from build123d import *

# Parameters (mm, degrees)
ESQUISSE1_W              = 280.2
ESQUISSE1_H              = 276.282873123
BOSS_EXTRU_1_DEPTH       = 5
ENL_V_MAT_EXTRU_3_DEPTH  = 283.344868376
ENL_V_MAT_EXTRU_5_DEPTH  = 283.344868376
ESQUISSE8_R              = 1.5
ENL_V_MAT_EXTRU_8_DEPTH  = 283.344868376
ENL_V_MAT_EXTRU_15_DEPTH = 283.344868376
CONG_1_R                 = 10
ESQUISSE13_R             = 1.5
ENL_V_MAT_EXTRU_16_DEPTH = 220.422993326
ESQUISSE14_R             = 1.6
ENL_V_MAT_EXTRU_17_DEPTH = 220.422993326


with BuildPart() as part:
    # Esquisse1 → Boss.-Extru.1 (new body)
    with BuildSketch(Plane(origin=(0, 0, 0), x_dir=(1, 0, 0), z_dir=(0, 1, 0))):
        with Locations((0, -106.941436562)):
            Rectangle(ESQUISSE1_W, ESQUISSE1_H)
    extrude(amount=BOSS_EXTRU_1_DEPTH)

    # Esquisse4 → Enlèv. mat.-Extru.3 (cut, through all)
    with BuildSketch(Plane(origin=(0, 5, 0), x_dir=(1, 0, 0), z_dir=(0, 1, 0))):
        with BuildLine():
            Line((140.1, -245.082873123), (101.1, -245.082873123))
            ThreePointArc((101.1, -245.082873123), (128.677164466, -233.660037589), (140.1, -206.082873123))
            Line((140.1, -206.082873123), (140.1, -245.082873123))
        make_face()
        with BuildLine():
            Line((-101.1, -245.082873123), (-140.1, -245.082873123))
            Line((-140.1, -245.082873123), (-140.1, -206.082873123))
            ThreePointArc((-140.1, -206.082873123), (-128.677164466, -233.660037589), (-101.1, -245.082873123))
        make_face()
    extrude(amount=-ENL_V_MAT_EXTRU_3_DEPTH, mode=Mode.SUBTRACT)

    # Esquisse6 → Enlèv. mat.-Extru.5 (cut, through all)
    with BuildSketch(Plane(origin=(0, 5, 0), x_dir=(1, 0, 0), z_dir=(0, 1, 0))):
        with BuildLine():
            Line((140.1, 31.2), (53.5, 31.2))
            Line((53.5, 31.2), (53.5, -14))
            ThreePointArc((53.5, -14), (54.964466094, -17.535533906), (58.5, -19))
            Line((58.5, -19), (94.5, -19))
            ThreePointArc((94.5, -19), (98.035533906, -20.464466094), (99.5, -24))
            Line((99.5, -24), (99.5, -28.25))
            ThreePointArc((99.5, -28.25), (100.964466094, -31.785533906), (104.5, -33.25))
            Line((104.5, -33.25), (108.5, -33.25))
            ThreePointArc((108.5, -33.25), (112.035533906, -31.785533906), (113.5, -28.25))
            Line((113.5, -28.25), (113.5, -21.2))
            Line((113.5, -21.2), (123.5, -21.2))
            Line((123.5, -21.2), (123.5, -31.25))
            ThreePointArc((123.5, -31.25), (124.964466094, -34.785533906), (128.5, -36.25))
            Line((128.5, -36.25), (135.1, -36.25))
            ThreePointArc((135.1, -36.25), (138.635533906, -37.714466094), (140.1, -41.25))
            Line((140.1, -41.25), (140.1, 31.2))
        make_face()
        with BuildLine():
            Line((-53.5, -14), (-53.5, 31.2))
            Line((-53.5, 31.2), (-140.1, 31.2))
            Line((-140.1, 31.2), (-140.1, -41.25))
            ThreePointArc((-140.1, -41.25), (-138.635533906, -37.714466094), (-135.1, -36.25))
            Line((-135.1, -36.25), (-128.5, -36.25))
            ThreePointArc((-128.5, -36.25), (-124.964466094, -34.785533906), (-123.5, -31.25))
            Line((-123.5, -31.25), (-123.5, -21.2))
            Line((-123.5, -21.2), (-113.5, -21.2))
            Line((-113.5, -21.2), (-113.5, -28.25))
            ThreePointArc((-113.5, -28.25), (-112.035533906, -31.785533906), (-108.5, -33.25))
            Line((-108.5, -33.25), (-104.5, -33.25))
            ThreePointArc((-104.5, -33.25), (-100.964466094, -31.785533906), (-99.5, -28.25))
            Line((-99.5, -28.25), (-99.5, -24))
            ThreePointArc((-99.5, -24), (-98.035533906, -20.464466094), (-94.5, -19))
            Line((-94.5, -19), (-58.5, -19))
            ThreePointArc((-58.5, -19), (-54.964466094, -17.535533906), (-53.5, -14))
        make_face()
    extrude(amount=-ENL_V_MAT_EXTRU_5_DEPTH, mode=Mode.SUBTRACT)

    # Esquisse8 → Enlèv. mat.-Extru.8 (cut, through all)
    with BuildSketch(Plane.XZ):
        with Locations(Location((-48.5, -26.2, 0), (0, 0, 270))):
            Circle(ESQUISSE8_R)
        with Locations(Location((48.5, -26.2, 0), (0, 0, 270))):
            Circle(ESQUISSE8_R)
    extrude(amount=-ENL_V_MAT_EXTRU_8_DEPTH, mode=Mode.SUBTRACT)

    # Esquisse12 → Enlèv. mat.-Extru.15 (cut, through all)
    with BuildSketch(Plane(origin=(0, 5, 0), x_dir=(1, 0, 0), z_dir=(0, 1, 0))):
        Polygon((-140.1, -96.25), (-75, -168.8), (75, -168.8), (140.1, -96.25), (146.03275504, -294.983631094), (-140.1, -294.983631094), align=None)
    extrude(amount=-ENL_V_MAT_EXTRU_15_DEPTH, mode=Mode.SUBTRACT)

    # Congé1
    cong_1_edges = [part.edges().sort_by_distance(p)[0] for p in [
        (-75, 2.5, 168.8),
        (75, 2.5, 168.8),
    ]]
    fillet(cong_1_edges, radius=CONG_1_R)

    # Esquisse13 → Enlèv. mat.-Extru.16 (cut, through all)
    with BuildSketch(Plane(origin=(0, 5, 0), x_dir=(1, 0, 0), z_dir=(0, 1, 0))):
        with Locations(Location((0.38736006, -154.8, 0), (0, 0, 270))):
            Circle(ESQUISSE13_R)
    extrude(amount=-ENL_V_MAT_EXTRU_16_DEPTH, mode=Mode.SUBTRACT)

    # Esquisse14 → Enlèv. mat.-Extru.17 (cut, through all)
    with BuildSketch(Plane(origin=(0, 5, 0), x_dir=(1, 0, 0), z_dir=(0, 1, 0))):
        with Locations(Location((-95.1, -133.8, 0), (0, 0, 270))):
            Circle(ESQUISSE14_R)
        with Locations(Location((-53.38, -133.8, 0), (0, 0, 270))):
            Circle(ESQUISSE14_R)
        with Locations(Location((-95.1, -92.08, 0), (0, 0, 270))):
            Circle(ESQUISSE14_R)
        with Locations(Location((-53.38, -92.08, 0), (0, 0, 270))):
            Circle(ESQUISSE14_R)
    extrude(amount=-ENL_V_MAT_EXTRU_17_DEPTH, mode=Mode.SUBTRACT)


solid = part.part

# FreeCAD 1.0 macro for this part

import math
import FreeCAD as App
import Part
import Sketcher
Q = App.Units.Quantity


def edges_at(feature, points):
    """Names of the edges that pass closest to the given points."""
    edges = feature.Shape.Edges
    near = lambda p: min(range(len(edges)), key=lambda i: edges[i].distToShape(Part.Vertex(*p))[0])
    return sorted({f"Edge{near(p) + 1}" for p in points})


def add_polygon(sketch, points):
    """Adds a closed chain of lines whose ends are joined by coincident constraints."""
    first, n = sketch.GeometryCount, len(points)
    for a, b in zip(points, points[1:] + points[:1]):
        sketch.addGeometry(Part.LineSegment(App.Vector(*a, 0), App.Vector(*b, 0)), False)
    for i in range(n):
        sketch.addConstraint(Sketcher.Constraint("Coincident", first + i, 2, first + (i + 1) % n, 1))

doc = App.newDocument("Part")
params = doc.addObject("Spreadsheet::Sheet", "Params")
for row, (alias, value) in enumerate([
    ("sketch1_width", "280.2 mm"),
    ("pad1_length", "5 mm"),
    ("sketch2_radius", "39 mm"),
    ("sketch3_radius", "5 mm"),
    ("sketch3_width", "36 mm"),
    ("sketch3_width2", "4 mm"),
    ("sketch3_width3", "10 mm"),
    ("sketch3_width4", "86.6 mm"),
    ("sketch4_diameter", "3 mm"),
    ("sketch5_width", "150 mm"),
    ("fillet_radius", "10 mm"),
    ("sketch6_diameter", "3 mm"),
    ("sketch7_diameter", "3.2 mm"),
], start=1):
    params.set(f"A{row}", alias)
    params.set(f"B{row}", "=" + value)
    params.setAlias(f"B{row}", alias)

body = doc.addObject("PartDesign::Body", "Body")

# Sketch on XZ plane
sketch1 = doc.addObject("Sketcher::SketchObject", "Sketch")
body.addObject(sketch1)
sketch1.AttachmentSupport = (doc.XZ_Plane, [""])
sketch1.MapMode = "FlatFace"
add_polygon(sketch1, [(-140.1, -31.2), (-140.1, 245.082873), (140.1, 245.082873), (140.1, -31.2)])  # lines 0-3
sketch1.addConstraint([
    Sketcher.Constraint("Vertical", 0),
    Sketcher.Constraint("Horizontal", 1),
    Sketcher.Constraint("Vertical", 2),
    Sketcher.Constraint("Horizontal", 3),
    Sketcher.Constraint("DistanceX", 1, 1, 1, 2, Q("280.2 mm")),
    Sketcher.Constraint("DistanceX", 0, 2, -1, 1, Q("140.1 mm")),
    Sketcher.Constraint("DistanceY", 2, 2, -1, 1, Q("31.2 mm")),
    Sketcher.Constraint("DistanceY", 0, 1, 0, 2, Q("276.282873 mm")),
])
sketch1.setExpression("Constraints[8]", "Params.sketch1_width")
pad1 = doc.addObject("PartDesign::Pad", "Pad")
body.addObject(pad1)
pad1.Profile = sketch1
pad1.setExpression("Length", "Params.pad1_length")
pad1.Reversed = True

# Sketch on XZ plane
sketch2 = doc.addObject("Sketcher::SketchObject", "Sketch001")
body.addObject(sketch2)
sketch2.AttachmentSupport = (doc.XZ_Plane, [""])
sketch2.MapMode = "FlatFace"
sketch2.AttachmentOffset = App.Placement(App.Vector(0, 0, -5), App.Rotation())
sketch2.addGeometry([
    Part.LineSegment(App.Vector(101.1, 245.082873, 0), App.Vector(140.1, 245.082873, 0)),  # 0
    Part.LineSegment(App.Vector(140.1, 245.082873, 0), App.Vector(140.1, 206.082873, 0)),  # 1
    Part.ArcOfCircle(Part.Circle(App.Vector(101.1, 206.082873, 0), App.Vector(0, 0, 1), 39), math.radians(0), math.radians(90)),  # 2
    Part.LineSegment(App.Vector(-140.1, 245.082873, 0), App.Vector(-101.1, 245.082873, 0)),  # 3
    Part.ArcOfCircle(Part.Circle(App.Vector(-101.1, 206.082873, 0), App.Vector(0, 0, 1), 39), math.radians(90), math.radians(180)),  # 4
    Part.LineSegment(App.Vector(-140.1, 206.082873, 0), App.Vector(-140.1, 245.082873, 0)),  # 5
], False)
sketch2.addConstraint([
    Sketcher.Constraint("Coincident", 0, 2, 1, 1),
    Sketcher.Constraint("Tangent", 1, 2, 2, 1),
    Sketcher.Constraint("Tangent", 2, 2, 0, 1),
    Sketcher.Constraint("Tangent", 3, 2, 4, 1),
    Sketcher.Constraint("Tangent", 4, 2, 5, 1),
    Sketcher.Constraint("Coincident", 5, 2, 3, 1),
    Sketcher.Constraint("Horizontal", 0),
    Sketcher.Constraint("Vertical", 1),
    Sketcher.Constraint("Horizontal", 3),
    Sketcher.Constraint("Vertical", 5),
    Sketcher.Constraint("Equal", 2, 4),
    Sketcher.Constraint("Symmetric", 2, 3, 4, 3, -2),
    Sketcher.Constraint("Radius", 2, Q("39 mm")),
    Sketcher.Constraint("DistanceX", -1, 1, 2, 3, Q("101.1 mm")),
    Sketcher.Constraint("DistanceY", -1, 1, 2, 3, Q("206.082873 mm")),
])
sketch2.setExpression("Constraints[12]", "Params.sketch2_radius")
pocket1 = doc.addObject("PartDesign::Pocket", "Pocket")
body.addObject(pocket1)
pocket1.Profile = sketch2
pocket1.Type = "ThroughAll"
pocket1.Reversed = True

# Sketch on XZ plane
sketch3 = doc.addObject("Sketcher::SketchObject", "Sketch002")
body.addObject(sketch3)
sketch3.AttachmentSupport = (doc.XZ_Plane, [""])
sketch3.MapMode = "FlatFace"
sketch3.AttachmentOffset = App.Placement(App.Vector(0, 0, -5), App.Rotation())
sketch3.addGeometry([
    Part.LineSegment(App.Vector(140.1, -31.2, 0), App.Vector(53.5, -31.2, 0)),  # 0
    Part.LineSegment(App.Vector(53.5, -31.2, 0), App.Vector(53.5, 14, 0)),  # 1
    Part.ArcOfCircle(Part.Circle(App.Vector(58.5, 14, 0), App.Vector(0, 0, 1), 5), math.radians(90), math.radians(180)),  # 2
    Part.LineSegment(App.Vector(58.5, 19, 0), App.Vector(94.5, 19, 0)),  # 3
    Part.ArcOfCircle(Part.Circle(App.Vector(94.5, 24, 0), App.Vector(0, 0, 1), 5), math.radians(-90), math.radians(0)),  # 4
    Part.LineSegment(App.Vector(99.5, 24, 0), App.Vector(99.5, 28.25, 0)),  # 5
    Part.ArcOfCircle(Part.Circle(App.Vector(104.5, 28.25, 0), App.Vector(0, 0, 1), 5), math.radians(90), math.radians(180)),  # 6
    Part.LineSegment(App.Vector(104.5, 33.25, 0), App.Vector(108.5, 33.25, 0)),  # 7
    Part.ArcOfCircle(Part.Circle(App.Vector(108.5, 28.25, 0), App.Vector(0, 0, 1), 5), math.radians(0), math.radians(90)),  # 8
    Part.LineSegment(App.Vector(113.5, 28.25, 0), App.Vector(113.5, 21.2, 0)),  # 9
    Part.LineSegment(App.Vector(113.5, 21.2, 0), App.Vector(123.5, 21.2, 0)),  # 10
    Part.LineSegment(App.Vector(123.5, 21.2, 0), App.Vector(123.5, 31.25, 0)),  # 11
    Part.ArcOfCircle(Part.Circle(App.Vector(128.5, 31.25, 0), App.Vector(0, 0, 1), 5), math.radians(90), math.radians(180)),  # 12
    Part.LineSegment(App.Vector(128.5, 36.25, 0), App.Vector(135.1, 36.25, 0)),  # 13
    Part.ArcOfCircle(Part.Circle(App.Vector(135.1, 41.25, 0), App.Vector(0, 0, 1), 5), math.radians(-90), math.radians(0)),  # 14
    Part.LineSegment(App.Vector(140.1, 41.25, 0), App.Vector(140.1, -31.2, 0)),  # 15
    Part.LineSegment(App.Vector(-53.5, 14, 0), App.Vector(-53.5, -31.2, 0)),  # 16
    Part.LineSegment(App.Vector(-53.5, -31.2, 0), App.Vector(-140.1, -31.2, 0)),  # 17
    Part.LineSegment(App.Vector(-140.1, -31.2, 0), App.Vector(-140.1, 41.25, 0)),  # 18
    Part.ArcOfCircle(Part.Circle(App.Vector(-135.1, 41.25, 0), App.Vector(0, 0, 1), 5), math.radians(180), math.radians(270)),  # 19
    Part.LineSegment(App.Vector(-135.1, 36.25, 0), App.Vector(-128.5, 36.25, 0)),  # 20
    Part.ArcOfCircle(Part.Circle(App.Vector(-128.5, 31.25, 0), App.Vector(0, 0, 1), 5), math.radians(0), math.radians(90)),  # 21
    Part.LineSegment(App.Vector(-123.5, 31.25, 0), App.Vector(-123.5, 21.2, 0)),  # 22
    Part.LineSegment(App.Vector(-123.5, 21.2, 0), App.Vector(-113.5, 21.2, 0)),  # 23
    Part.LineSegment(App.Vector(-113.5, 21.2, 0), App.Vector(-113.5, 28.25, 0)),  # 24
    Part.ArcOfCircle(Part.Circle(App.Vector(-108.5, 28.25, 0), App.Vector(0, 0, 1), 5), math.radians(90), math.radians(180)),  # 25
    Part.LineSegment(App.Vector(-108.5, 33.25, 0), App.Vector(-104.5, 33.25, 0)),  # 26
    Part.ArcOfCircle(Part.Circle(App.Vector(-104.5, 28.25, 0), App.Vector(0, 0, 1), 5), math.radians(0), math.radians(90)),  # 27
    Part.LineSegment(App.Vector(-99.5, 28.25, 0), App.Vector(-99.5, 24, 0)),  # 28
    Part.ArcOfCircle(Part.Circle(App.Vector(-94.5, 24, 0), App.Vector(0, 0, 1), 5), math.radians(180), math.radians(270)),  # 29
    Part.LineSegment(App.Vector(-94.5, 19, 0), App.Vector(-58.5, 19, 0)),  # 30
    Part.ArcOfCircle(Part.Circle(App.Vector(-58.5, 14, 0), App.Vector(0, 0, 1), 5), math.radians(0), math.radians(90)),  # 31
], False)
sketch3.addConstraint([
    Sketcher.Constraint("Coincident", 0, 2, 1, 1),
    Sketcher.Constraint("Tangent", 1, 2, 2, 2),
    Sketcher.Constraint("Tangent", 2, 1, 3, 1),
    Sketcher.Constraint("Tangent", 3, 2, 4, 1),
    Sketcher.Constraint("Tangent", 4, 2, 5, 1),
    Sketcher.Constraint("Tangent", 5, 2, 6, 2),
    Sketcher.Constraint("Tangent", 6, 1, 7, 1),
    Sketcher.Constraint("Tangent", 7, 2, 8, 2),
    Sketcher.Constraint("Tangent", 8, 1, 9, 1),
    Sketcher.Constraint("Coincident", 9, 2, 10, 1),
    Sketcher.Constraint("Coincident", 10, 2, 11, 1),
    Sketcher.Constraint("Tangent", 11, 2, 12, 2),
    Sketcher.Constraint("Tangent", 12, 1, 13, 1),
    Sketcher.Constraint("Tangent", 13, 2, 14, 1),
    Sketcher.Constraint("Tangent", 14, 2, 15, 1),
    Sketcher.Constraint("Coincident", 15, 2, 0, 1),
    Sketcher.Constraint("Coincident", 16, 2, 17, 1),
    Sketcher.Constraint("Coincident", 17, 2, 18, 1),
    Sketcher.Constraint("Tangent", 18, 2, 19, 1),
    Sketcher.Constraint("Tangent", 19, 2, 20, 1),
    Sketcher.Constraint("Tangent", 20, 2, 21, 2),
    Sketcher.Constraint("Tangent", 21, 1, 22, 1),
    Sketcher.Constraint("Coincident", 22, 2, 23, 1),
    Sketcher.Constraint("Coincident", 23, 2, 24, 1),
    Sketcher.Constraint("Tangent", 24, 2, 25, 2),
    Sketcher.Constraint("Tangent", 25, 1, 26, 1),
    Sketcher.Constraint("Tangent", 26, 2, 27, 2),
    Sketcher.Constraint("Tangent", 27, 1, 28, 1),
    Sketcher.Constraint("Tangent", 28, 2, 29, 1),
    Sketcher.Constraint("Tangent", 29, 2, 30, 1),
    Sketcher.Constraint("Tangent", 30, 2, 31, 2),
    Sketcher.Constraint("Tangent", 31, 1, 16, 1),
    Sketcher.Constraint("Horizontal", 0),
    Sketcher.Constraint("Vertical", 1),
    Sketcher.Constraint("Horizontal", 3),
    Sketcher.Constraint("Vertical", 5),
    Sketcher.Constraint("Horizontal", 7),
    Sketcher.Constraint("Vertical", 9),
    Sketcher.Constraint("Horizontal", 10),
    Sketcher.Constraint("Vertical", 11),
    Sketcher.Constraint("Horizontal", 13),
    Sketcher.Constraint("Vertical", 15),
    Sketcher.Constraint("Vertical", 16),
    Sketcher.Constraint("Horizontal", 17),
    Sketcher.Constraint("Vertical", 18),
    Sketcher.Constraint("Horizontal", 20),
    Sketcher.Constraint("Vertical", 22),
    Sketcher.Constraint("Horizontal", 23),
    Sketcher.Constraint("Vertical", 24),
    Sketcher.Constraint("Horizontal", 26),
    Sketcher.Constraint("Vertical", 28),
    Sketcher.Constraint("Horizontal", 30),
    Sketcher.Constraint("Equal", 2, 4),
    Sketcher.Constraint("Equal", 4, 6),
    Sketcher.Constraint("Equal", 6, 8),
    Sketcher.Constraint("Equal", 8, 12),
    Sketcher.Constraint("Equal", 12, 14),
    Sketcher.Constraint("Equal", 14, 19),
    Sketcher.Constraint("Equal", 19, 21),
    Sketcher.Constraint("Equal", 21, 25),
    Sketcher.Constraint("Equal", 25, 27),
    Sketcher.Constraint("Equal", 27, 29),
    Sketcher.Constraint("Equal", 29, 31),
    Sketcher.Constraint("Symmetric", 14, 3, 19, 3, -2),
    Sketcher.Constraint("Symmetric", 8, 3, 25, 3, -2),
    Sketcher.Constraint("Symmetric", 4, 3, 29, 3, -2),
    Sketcher.Constraint("Symmetric", 0, 2, 16, 2, -2),
    Sketcher.Constraint("Symmetric", 10, 2, 22, 2, -2),
    Sketcher.Constraint("Radius", 2, Q("5 mm")),
    Sketcher.Constraint("DistanceX", 3, 1, 3, 2, Q("36 mm")),
    Sketcher.Constraint("DistanceX", 7, 1, 7, 2, Q("4 mm")),
    Sketcher.Constraint("DistanceX", 10, 1, 10, 2, Q("10 mm")),
    Sketcher.Constraint("DistanceX", 0, 2, 0, 1, Q("86.6 mm")),
    Sketcher.Constraint("DistanceY", 1, 1, 1, 2, Q("45.2 mm")),
    Sketcher.Constraint("DistanceY", -1, 1, 2, 3, Q("14 mm")),
    Sketcher.Constraint("DistanceY", 8, 3, 12, 3, Q("3 mm")),
    Sketcher.Constraint("DistanceX", 21, 3, 2, 3, Q("187 mm")),
    Sketcher.Constraint("DistanceY", 5, 1, 5, 2, Q("4.25 mm")),
    Sketcher.Constraint("DistanceY", 9, 2, 9, 1, Q("7.05 mm")),
])
sketch3.setExpression("Constraints[68]", "Params.sketch3_radius")
sketch3.setExpression("Constraints[69]", "Params.sketch3_width")
sketch3.setExpression("Constraints[70]", "Params.sketch3_width2")
sketch3.setExpression("Constraints[71]", "Params.sketch3_width3")
sketch3.setExpression("Constraints[72]", "Params.sketch3_width4")
pocket2 = doc.addObject("PartDesign::Pocket", "Pocket001")
body.addObject(pocket2)
pocket2.Profile = sketch3
pocket2.Type = "ThroughAll"
pocket2.Reversed = True

# Sketch on XZ plane
sketch4 = doc.addObject("Sketcher::SketchObject", "Sketch003")
body.addObject(sketch4)
sketch4.AttachmentSupport = (doc.XZ_Plane, [""])
sketch4.MapMode = "FlatFace"
sketch4.addGeometry([
    Part.Circle(App.Vector(-48.5, -26.2, 0), App.Vector(0, 0, 1), 1.5),
    Part.Circle(App.Vector(48.5, -26.2, 0), App.Vector(0, 0, 1), 1.5),
], False)
sketch4.addConstraint([
    Sketcher.Constraint("Equal", 0, 1),
    Sketcher.Constraint("Symmetric", 0, 3, 1, 3, -2),
    Sketcher.Constraint("Diameter", 0, Q("3 mm")),
    Sketcher.Constraint("DistanceX", 0, 3, 1, 3, Q("97 mm")),
    Sketcher.Constraint("DistanceY", 0, 3, -1, 1, Q("26.2 mm")),
])
sketch4.setExpression("Constraints[2]", "Params.sketch4_diameter")
pocket3 = doc.addObject("PartDesign::Pocket", "Pocket002")
body.addObject(pocket3)
pocket3.Profile = sketch4
pocket3.Type = "ThroughAll"

# Sketch on XZ plane
sketch5 = doc.addObject("Sketcher::SketchObject", "Sketch004")
body.addObject(sketch5)
sketch5.AttachmentSupport = (doc.XZ_Plane, [""])
sketch5.MapMode = "FlatFace"
sketch5.AttachmentOffset = App.Placement(App.Vector(0, 0, -5), App.Rotation())
add_polygon(sketch5, [(-75, 168.8), (-140.1, 96.25), (-140.1, 294.983631), (146.032755, 294.983631), (140.1, 96.25), (75, 168.8)])  # lines 0-5
sketch5.addConstraint([
    Sketcher.Constraint("Vertical", 1),
    Sketcher.Constraint("Horizontal", 2),
    Sketcher.Constraint("Horizontal", 5),
    Sketcher.Constraint("Symmetric", 0, 2, 3, 2, -2),
    Sketcher.Constraint("Equal", 0, 4),
    Sketcher.Constraint("DistanceX", 5, 2, 5, 1, Q("150 mm")),
    Sketcher.Constraint("DistanceX", 0, 2, -1, 1, Q("140.1 mm")),
    Sketcher.Constraint("DistanceY", -1, 1, 4, 2, Q("168.8 mm")),
    Sketcher.Constraint("DistanceY", -1, 1, 0, 2, Q("96.25 mm")),
    Sketcher.Constraint("DistanceY", 1, 1, 1, 2, Q("198.733631 mm")),
    Sketcher.Constraint("DistanceX", 2, 1, 2, 2, Q("286.132755 mm")),
])
sketch5.setExpression("Constraints[11]", "Params.sketch5_width")
pocket4 = doc.addObject("PartDesign::Pocket", "Pocket003")
body.addObject(pocket4)
pocket4.Profile = sketch5
pocket4.Type = "ThroughAll"
pocket4.Reversed = True
doc.recompute()

fillet = doc.addObject("PartDesign::Fillet", "Fillet")
body.addObject(fillet)
fillet.Base = (pocket4, edges_at(pocket4, [(-75, 2.5, 168.8), (75, 2.5, 168.8)]))
fillet.setExpression("Radius", "Params.fillet_radius")

# Sketch on XZ plane
sketch6 = doc.addObject("Sketcher::SketchObject", "Sketch005")
body.addObject(sketch6)
sketch6.AttachmentSupport = (doc.XZ_Plane, [""])
sketch6.MapMode = "FlatFace"
sketch6.AttachmentOffset = App.Placement(App.Vector(0, 0, -5), App.Rotation())
sketch6.addGeometry(Part.Circle(App.Vector(0.38736, 154.8, 0), App.Vector(0, 0, 1), 1.5), False)
sketch6.addConstraint([
    Sketcher.Constraint("Diameter", 0, Q("3 mm")),
    Sketcher.Constraint("DistanceY", -1, 1, 0, 3, Q("154.8 mm")),
    Sketcher.Constraint("DistanceX", -1, 1, 0, 3, Q("0.38736 mm")),
])
sketch6.setExpression("Constraints[0]", "Params.sketch6_diameter")
pocket5 = doc.addObject("PartDesign::Pocket", "Pocket004")
body.addObject(pocket5)
pocket5.Profile = sketch6
pocket5.Type = "ThroughAll"
pocket5.Reversed = True

# Sketch on XZ plane
sketch7 = doc.addObject("Sketcher::SketchObject", "Sketch006")
body.addObject(sketch7)
sketch7.AttachmentSupport = (doc.XZ_Plane, [""])
sketch7.MapMode = "FlatFace"
sketch7.AttachmentOffset = App.Placement(App.Vector(0, 0, -5), App.Rotation())
sketch7.addGeometry([
    Part.Circle(App.Vector(-95.1, 133.8, 0), App.Vector(0, 0, 1), 1.6),
    Part.Circle(App.Vector(-53.38, 133.8, 0), App.Vector(0, 0, 1), 1.6),
    Part.Circle(App.Vector(-95.1, 92.08, 0), App.Vector(0, 0, 1), 1.6),
    Part.Circle(App.Vector(-53.38, 92.08, 0), App.Vector(0, 0, 1), 1.6),
], False)
sketch7.addConstraint([
    Sketcher.Constraint("Equal", 0, 1),
    Sketcher.Constraint("Equal", 1, 2),
    Sketcher.Constraint("Equal", 2, 3),
    Sketcher.Constraint("Horizontal", 0, 3, 1, 3),
    Sketcher.Constraint("Horizontal", 2, 3, 3, 3),
    Sketcher.Constraint("Vertical", 0, 3, 2, 3),
    Sketcher.Constraint("Vertical", 1, 3, 3, 3),
    Sketcher.Constraint("Diameter", 0, Q("3.2 mm")),
    Sketcher.Constraint("DistanceX", 0, 3, -1, 1, Q("95.1 mm")),
    Sketcher.Constraint("DistanceY", -1, 1, 0, 3, Q("133.8 mm")),
    Sketcher.Constraint("DistanceX", 1, 3, -1, 1, Q("53.38 mm")),
    Sketcher.Constraint("DistanceY", -1, 1, 2, 3, Q("92.08 mm")),
])
sketch7.setExpression("Constraints[7]", "Params.sketch7_diameter")
pocket6 = doc.addObject("PartDesign::Pocket", "Pocket005")
body.addObject(pocket6)
pocket6.Profile = sketch7
pocket6.Type = "ThroughAll"
pocket6.Reversed = True

doc.recompute()
